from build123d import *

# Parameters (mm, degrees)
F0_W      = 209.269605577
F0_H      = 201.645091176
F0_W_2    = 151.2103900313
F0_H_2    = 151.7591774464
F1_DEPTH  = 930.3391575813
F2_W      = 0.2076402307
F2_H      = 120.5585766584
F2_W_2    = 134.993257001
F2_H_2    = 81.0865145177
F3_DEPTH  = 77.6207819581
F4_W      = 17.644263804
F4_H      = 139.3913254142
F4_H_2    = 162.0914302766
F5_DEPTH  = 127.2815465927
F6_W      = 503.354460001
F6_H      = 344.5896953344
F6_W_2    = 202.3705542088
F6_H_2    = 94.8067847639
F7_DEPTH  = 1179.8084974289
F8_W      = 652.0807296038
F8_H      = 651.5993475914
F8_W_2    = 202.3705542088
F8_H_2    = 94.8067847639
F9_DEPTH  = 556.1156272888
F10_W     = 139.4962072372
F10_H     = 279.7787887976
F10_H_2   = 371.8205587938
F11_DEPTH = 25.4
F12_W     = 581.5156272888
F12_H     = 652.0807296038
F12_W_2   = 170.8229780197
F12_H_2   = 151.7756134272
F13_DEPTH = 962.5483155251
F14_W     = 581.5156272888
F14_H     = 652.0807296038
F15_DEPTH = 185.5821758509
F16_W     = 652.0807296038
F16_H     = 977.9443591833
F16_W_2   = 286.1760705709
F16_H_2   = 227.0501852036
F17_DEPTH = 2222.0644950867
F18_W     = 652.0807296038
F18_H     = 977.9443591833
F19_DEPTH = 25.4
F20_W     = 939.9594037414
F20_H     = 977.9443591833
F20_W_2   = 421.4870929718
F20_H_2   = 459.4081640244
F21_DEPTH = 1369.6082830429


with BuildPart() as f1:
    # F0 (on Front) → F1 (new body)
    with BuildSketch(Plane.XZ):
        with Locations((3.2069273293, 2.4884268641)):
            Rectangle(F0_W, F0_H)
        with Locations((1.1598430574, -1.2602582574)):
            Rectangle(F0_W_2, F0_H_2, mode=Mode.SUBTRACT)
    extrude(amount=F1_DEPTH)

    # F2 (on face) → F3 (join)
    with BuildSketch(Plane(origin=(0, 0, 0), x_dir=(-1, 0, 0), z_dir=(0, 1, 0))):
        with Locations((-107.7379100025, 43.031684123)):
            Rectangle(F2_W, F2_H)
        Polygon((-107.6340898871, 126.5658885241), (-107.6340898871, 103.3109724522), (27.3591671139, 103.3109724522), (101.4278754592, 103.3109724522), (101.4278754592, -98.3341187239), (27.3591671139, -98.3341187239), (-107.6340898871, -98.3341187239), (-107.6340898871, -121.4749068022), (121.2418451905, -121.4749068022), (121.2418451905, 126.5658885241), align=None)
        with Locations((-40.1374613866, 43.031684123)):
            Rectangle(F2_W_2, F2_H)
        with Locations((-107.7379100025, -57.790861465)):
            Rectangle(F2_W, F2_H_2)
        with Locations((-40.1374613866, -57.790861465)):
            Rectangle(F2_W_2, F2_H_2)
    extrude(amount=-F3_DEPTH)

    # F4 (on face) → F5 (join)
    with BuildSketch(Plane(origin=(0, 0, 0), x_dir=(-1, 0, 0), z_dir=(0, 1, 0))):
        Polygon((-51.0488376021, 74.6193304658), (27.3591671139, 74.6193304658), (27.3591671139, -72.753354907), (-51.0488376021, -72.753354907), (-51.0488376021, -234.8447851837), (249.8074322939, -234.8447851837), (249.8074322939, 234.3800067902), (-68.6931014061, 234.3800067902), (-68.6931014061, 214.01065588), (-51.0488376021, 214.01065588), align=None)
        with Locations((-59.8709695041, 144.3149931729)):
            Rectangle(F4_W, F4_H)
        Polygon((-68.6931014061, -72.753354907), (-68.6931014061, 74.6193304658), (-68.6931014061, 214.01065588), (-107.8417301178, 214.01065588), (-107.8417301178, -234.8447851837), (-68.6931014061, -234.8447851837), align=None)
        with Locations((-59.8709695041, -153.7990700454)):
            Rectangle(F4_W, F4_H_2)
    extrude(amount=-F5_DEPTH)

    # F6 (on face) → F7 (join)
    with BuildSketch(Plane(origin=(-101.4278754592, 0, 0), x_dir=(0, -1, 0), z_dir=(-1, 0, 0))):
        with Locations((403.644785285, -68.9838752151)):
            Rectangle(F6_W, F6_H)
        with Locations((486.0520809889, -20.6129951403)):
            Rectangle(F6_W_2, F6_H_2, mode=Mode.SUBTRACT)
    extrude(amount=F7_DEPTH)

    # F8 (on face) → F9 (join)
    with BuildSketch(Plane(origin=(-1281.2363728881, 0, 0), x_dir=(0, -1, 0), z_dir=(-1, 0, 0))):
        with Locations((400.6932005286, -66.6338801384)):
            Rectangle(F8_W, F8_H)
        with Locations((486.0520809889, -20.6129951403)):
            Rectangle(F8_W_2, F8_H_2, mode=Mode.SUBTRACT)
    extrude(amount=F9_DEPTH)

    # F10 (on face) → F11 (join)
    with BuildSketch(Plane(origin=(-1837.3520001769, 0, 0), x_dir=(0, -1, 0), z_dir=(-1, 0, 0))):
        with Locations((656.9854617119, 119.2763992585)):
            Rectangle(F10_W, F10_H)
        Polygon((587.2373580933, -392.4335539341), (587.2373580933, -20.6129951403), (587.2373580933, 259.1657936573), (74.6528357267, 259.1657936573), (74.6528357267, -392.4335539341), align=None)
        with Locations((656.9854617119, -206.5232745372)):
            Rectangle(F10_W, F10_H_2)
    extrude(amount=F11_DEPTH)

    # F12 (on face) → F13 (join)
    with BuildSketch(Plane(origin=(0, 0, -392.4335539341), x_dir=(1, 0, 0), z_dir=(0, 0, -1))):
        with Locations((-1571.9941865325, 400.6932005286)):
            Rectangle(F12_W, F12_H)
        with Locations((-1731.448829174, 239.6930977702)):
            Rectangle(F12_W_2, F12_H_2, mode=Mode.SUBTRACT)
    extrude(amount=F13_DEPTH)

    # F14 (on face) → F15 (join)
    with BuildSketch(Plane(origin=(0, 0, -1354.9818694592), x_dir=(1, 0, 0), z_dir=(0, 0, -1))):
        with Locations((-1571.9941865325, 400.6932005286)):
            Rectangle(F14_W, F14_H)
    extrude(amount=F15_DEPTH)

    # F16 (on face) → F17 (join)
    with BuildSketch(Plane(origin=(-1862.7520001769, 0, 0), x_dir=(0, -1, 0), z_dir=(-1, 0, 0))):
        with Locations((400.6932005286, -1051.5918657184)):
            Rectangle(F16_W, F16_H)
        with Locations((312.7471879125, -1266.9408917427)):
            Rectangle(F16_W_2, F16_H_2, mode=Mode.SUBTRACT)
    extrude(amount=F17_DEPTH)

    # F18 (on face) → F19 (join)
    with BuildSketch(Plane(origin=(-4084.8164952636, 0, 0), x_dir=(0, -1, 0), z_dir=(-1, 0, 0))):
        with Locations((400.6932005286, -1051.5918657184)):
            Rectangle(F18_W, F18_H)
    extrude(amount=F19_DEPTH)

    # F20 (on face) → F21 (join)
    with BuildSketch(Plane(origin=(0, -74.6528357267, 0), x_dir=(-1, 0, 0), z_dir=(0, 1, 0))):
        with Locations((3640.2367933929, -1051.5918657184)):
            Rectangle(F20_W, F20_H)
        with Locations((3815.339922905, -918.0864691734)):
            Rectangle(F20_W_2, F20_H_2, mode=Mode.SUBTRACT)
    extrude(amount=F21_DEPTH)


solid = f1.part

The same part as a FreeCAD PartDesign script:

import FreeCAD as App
import Part
import Sketcher
Q = App.Units.Quantity

doc = App.newDocument("Part")
body = doc.addObject("PartDesign::Body", "Body")

# Sketch on XZ plane
sketch1 = doc.addObject("Sketcher::SketchObject", "Sketch")
body.addObject(sketch1)
sketch1.AttachmentSupport = (doc.XZ_Plane, [""])
sketch1.MapMode = "FlatFace"
sketch1.addGeometry([
    Part.LineSegment(App.Vector(-101.427875, 103.310972, 0), App.Vector(-101.427875, -98.334119, 0)),  # 0
    Part.LineSegment(App.Vector(-101.427875, -98.334119, 0), App.Vector(107.84173, -98.334119, 0)),  # 1
    Part.LineSegment(App.Vector(107.84173, -98.334119, 0), App.Vector(107.84173, 103.310972, 0)),  # 2
    Part.LineSegment(App.Vector(107.84173, 103.310972, 0), App.Vector(-101.427875, 103.310972, 0)),  # 3
    Part.LineSegment(App.Vector(76.765038, -77.139847, 0), App.Vector(-74.445352, -77.139847, 0)),  # 4
    Part.LineSegment(App.Vector(-74.445352, -77.139847, 0), App.Vector(-74.445352, 74.61933, 0)),  # 5
    Part.LineSegment(App.Vector(-74.445352, 74.61933, 0), App.Vector(76.765038, 74.61933, 0)),  # 6
    Part.LineSegment(App.Vector(76.765038, 74.61933, 0), App.Vector(76.765038, -77.139847, 0)),  # 7
], False)
sketch1.addConstraint([
    Sketcher.Constraint("Coincident", 0, 2, 1, 1),
    Sketcher.Constraint("Coincident", 1, 2, 2, 1),
    Sketcher.Constraint("Coincident", 2, 2, 3, 1),
    Sketcher.Constraint("Coincident", 3, 2, 0, 1),
    Sketcher.Constraint("Coincident", 4, 2, 5, 1),
    Sketcher.Constraint("Coincident", 5, 2, 6, 1),
    Sketcher.Constraint("Coincident", 6, 2, 7, 1),
    Sketcher.Constraint("Coincident", 7, 2, 4, 1),
    Sketcher.Constraint("Vertical", 0),
    Sketcher.Constraint("Horizontal", 1),
    Sketcher.Constraint("Vertical", 2),
    Sketcher.Constraint("Horizontal", 3),
    Sketcher.Constraint("Horizontal", 4),
    Sketcher.Constraint("Vertical", 5),
    Sketcher.Constraint("Horizontal", 6),
    Sketcher.Constraint("Vertical", 7),
    Sketcher.Constraint("DistanceX", 4, 2, 4, 1, 151.21039),
    Sketcher.Constraint("DistanceY", 0, 2, 0, 1, 201.645091),
    Sketcher.Constraint("DistanceX", 1, 1, 1, 2, 209.269606),
    Sketcher.Constraint("DistanceY", 5, 1, 5, 2, 151.759177),
    Sketcher.Constraint("DistanceY", 0, 2, -1, 1, 98.334119),
    Sketcher.Constraint("DistanceX", -1, 1, 1, 2, 107.84173),
    Sketcher.Constraint("DistanceX", 4, 2, -1, 1, 74.445352),
    Sketcher.Constraint("DistanceY", -1, 1, 5, 2, 74.61933),
])
pad1 = doc.addObject("PartDesign::Pad", "Pad")
body.addObject(pad1)
pad1.Profile = sketch1
pad1.Length = 930.339158

# Sketch on XZ plane
sketch2 = doc.addObject("Sketcher::SketchObject", "Sketch001")
body.addObject(sketch2)
sketch2.AttachmentSupport = (doc.XZ_Plane, [""])
sketch2.MapMode = "FlatFace"
sketch2.addGeometry([
    Part.LineSegment(App.Vector(107.84173, -98.334119, 0), App.Vector(107.63409, -98.334119, 0)),  # 0
    Part.LineSegment(App.Vector(107.63409, -98.334119, 0), App.Vector(107.63409, -121.474907, 0)),  # 1
    Part.LineSegment(App.Vector(107.63409, -121.474907, 0), App.Vector(-121.241845, -121.474907, 0)),  # 2
    Part.LineSegment(App.Vector(-121.241845, -121.474907, 0), App.Vector(-121.241845, 126.565889, 0)),  # 3
    Part.LineSegment(App.Vector(-121.241845, 126.565889, 0), App.Vector(107.63409, 126.565889, 0)),  # 4
    Part.LineSegment(App.Vector(107.63409, 126.565889, 0), App.Vector(107.63409, 103.310972, 0)),  # 5
    Part.LineSegment(App.Vector(107.63409, 103.310972, 0), App.Vector(107.84173, 103.310972, 0)),  # 6
    Part.LineSegment(App.Vector(107.84173, 103.310972, 0), App.Vector(107.84173, -98.334119, 0)),  # 7
    Part.LineSegment(App.Vector(-101.427875, -98.334119, 0), App.Vector(-27.359167, -98.334119, 0)),  # 8
    Part.LineSegment(App.Vector(-27.359167, -98.334119, 0), App.Vector(-27.359167, 103.310972, 0)),  # 9
    Part.LineSegment(App.Vector(-27.359167, 103.310972, 0), App.Vector(-101.427875, 103.310972, 0)),  # 10
    Part.LineSegment(App.Vector(-101.427875, 103.310972, 0), App.Vector(-101.427875, -98.334119, 0)),  # 11
], False)
sketch2.addConstraint([
    Sketcher.Constraint("Coincident", 0, 2, 1, 1),
    Sketcher.Constraint("Coincident", 1, 2, 2, 1),
    Sketcher.Constraint("Coincident", 2, 2, 3, 1),
    Sketcher.Constraint("Coincident", 3, 2, 4, 1),
    Sketcher.Constraint("Coincident", 4, 2, 5, 1),
    Sketcher.Constraint("Coincident", 5, 2, 6, 1),
    Sketcher.Constraint("Coincident", 6, 2, 7, 1),
    Sketcher.Constraint("Coincident", 7, 2, 0, 1),
    Sketcher.Constraint("Coincident", 8, 2, 9, 1),
    Sketcher.Constraint("Coincident", 9, 2, 10, 1),
    Sketcher.Constraint("Coincident", 10, 2, 11, 1),
    Sketcher.Constraint("Coincident", 11, 2, 8, 1),
    Sketcher.Constraint("Horizontal", 0),
    Sketcher.Constraint("Vertical", 1),
    Sketcher.Constraint("Horizontal", 2),
    Sketcher.Constraint("Vertical", 3),
    Sketcher.Constraint("Horizontal", 4),
    Sketcher.Constraint("Vertical", 5),
    Sketcher.Constraint("Horizontal", 6),
    Sketcher.Constraint("Vertical", 7),
    Sketcher.Constraint("Horizontal", 8),
    Sketcher.Constraint("Vertical", 9),
    Sketcher.Constraint("Horizontal", 10),
    Sketcher.Constraint("Vertical", 11),
    Sketcher.Constraint("Horizontal", 7, 2, 8, 2),
    Sketcher.Constraint("Horizontal", 6, 2, 9, 2),
    Sketcher.Constraint("Vertical", 1, 2, 4, 2),
    Sketcher.Constraint("DistanceX", 0, 2, 0, 1, 0.20764),
    Sketcher.Constraint("DistanceX", 8, 1, 8, 2, 74.068708),
    Sketcher.Constraint("DistanceY", 1, 2, 1, 1, 23.140788),
    Sketcher.Constraint("DistanceY", 7, 2, 7, 1, 201.645091),
    Sketcher.Constraint("DistanceX", 2, 2, 2, 1, 228.875935),
    Sketcher.Constraint("DistanceY", 3, 1, 3, 2, 248.040795),
    Sketcher.Constraint("DistanceX", -1, 1, 0, 2, 107.63409),
    Sketcher.Constraint("DistanceY", 0, 2, -1, 1, 98.334119),
    Sketcher.Constraint("DistanceX", 2, 2, 8, 2, 93.882678),
])
pad2 = doc.addObject("PartDesign::Pad", "Pad001")
body.addObject(pad2)
pad2.Profile = sketch2
pad2.Length = 77.620782

# Sketch on XZ plane
sketch3 = doc.addObject("Sketcher::SketchObject", "Sketch002")
body.addObject(sketch3)
sketch3.AttachmentSupport = (doc.XZ_Plane, [""])
sketch3.MapMode = "FlatFace"
sketch3.addGeometry([
    Part.LineSegment(App.Vector(-249.807432, -234.844785, 0), App.Vector(-249.807432, 234.380007, 0)),  # 0
    Part.LineSegment(App.Vector(-249.807432, 234.380007, 0), App.Vector(68.693101, 234.380007, 0)),  # 1
    Part.LineSegment(App.Vector(68.693101, 234.380007, 0), App.Vector(68.693101, 214.010656, 0)),  # 2
    Part.LineSegment(App.Vector(68.693101, 214.010656, 0), App.Vector(107.84173, 214.010656, 0)),  # 3
    Part.LineSegment(App.Vector(107.84173, 214.010656, 0), App.Vector(107.84173, -234.844785, 0)),  # 4
    Part.LineSegment(App.Vector(107.84173, -234.844785, 0), App.Vector(-249.807432, -234.844785, 0)),  # 5
    Part.LineSegment(App.Vector(-27.359167, 74.61933, 0), App.Vector(-27.359167, -72.753355, 0)),  # 6
    Part.LineSegment(App.Vector(-27.359167, -72.753355, 0), App.Vector(51.048838, -72.753355, 0)),  # 7
    Part.LineSegment(App.Vector(51.048838, -72.753355, 0), App.Vector(68.693101, -72.753355, 0)),  # 8
    Part.LineSegment(App.Vector(68.693101, -72.753355, 0), App.Vector(68.693101, 74.61933, 0)),  # 9
    Part.LineSegment(App.Vector(68.693101, 74.61933, 0), App.Vector(-27.359167, 74.61933, 0)),  # 10
], False)
sketch3.addConstraint([
    Sketcher.Constraint("Coincident", 0, 2, 1, 1),
    Sketcher.Constraint("Coincident", 1, 2, 2, 1),
    Sketcher.Constraint("Coincident", 2, 2, 3, 1),
    Sketcher.Constraint("Coincident", 3, 2, 4, 1),
    Sketcher.Constraint("Coincident", 4, 2, 5, 1),
    Sketcher.Constraint("Coincident", 5, 2, 0, 1),
    Sketcher.Constraint("Coincident", 6, 2, 7, 1),
    Sketcher.Constraint("Coincident", 7, 2, 8, 1),
    Sketcher.Constraint("Coincident", 8, 2, 9, 1),
    Sketcher.Constraint("Coincident", 9, 2, 10, 1),
    Sketcher.Constraint("Coincident", 10, 2, 6, 1),
    Sketcher.Constraint("Vertical", 0),
    Sketcher.Constraint("Horizontal", 1),
    Sketcher.Constraint("Vertical", 2),
    Sketcher.Constraint("Horizontal", 3),
    Sketcher.Constraint("Vertical", 4),
    Sketcher.Constraint("Horizontal", 5),
    Sketcher.Constraint("Vertical", 6),
    Sketcher.Constraint("Horizontal", 7),
    Sketcher.Constraint("Horizontal", 8),
    Sketcher.Constraint("Vertical", 9),
    Sketcher.Constraint("Horizontal", 10),
    Sketcher.Constraint("Vertical", 2, 2, 8, 2),
    Sketcher.Constraint("DistanceX", 3, 1, 3, 2, 39.148629),
    Sketcher.Constraint("DistanceX", 10, 2, 10, 1, 96.052269),
    Sketcher.Constraint("DistanceY", 0, 1, 0, 2, 469.224792),
    Sketcher.Constraint("DistanceY", 2, 2, 2, 1, 20.369351),
    Sketcher.Constraint("DistanceX", -1, 1, 1, 2, 68.693101),
    Sketcher.Constraint("DistanceX", 1, 1, 1, 2, 318.500534),
    Sketcher.Constraint("DistanceX", 7, 1, 7, 2, 78.408005),
    Sketcher.Constraint("DistanceY", 6, 2, 6, 1, 147.372685),
    Sketcher.Constraint("DistanceY", -1, 1, 9, 2, 74.61933),
    Sketcher.Constraint("DistanceY", 4, 2, 6, 2, 162.09143),
])
pad3 = doc.addObject("PartDesign::Pad", "Pad002")
body.addObject(pad3)
pad3.Profile = sketch3
pad3.Length = 127.281547

# Sketch on YZ plane
sketch4 = doc.addObject("Sketcher::SketchObject", "Sketch003")
body.addObject(sketch4)
sketch4.AttachmentSupport = (doc.YZ_Plane, [""])
sketch4.MapMode = "FlatFace"
sketch4.AttachmentOffset = App.Placement(App.Vector(0, 0, -101.427875), App.Rotation())
sketch4.addGeometry([
    Part.LineSegment(App.Vector(-151.967555, 103.310972, 0), App.Vector(-151.967555, -241.278723, 0)),  # 0
    Part.LineSegment(App.Vector(-151.967555, -241.278723, 0), App.Vector(-655.322015, -241.278723, 0)),  # 1
    Part.LineSegment(App.Vector(-655.322015, -241.278723, 0), App.Vector(-655.322015, 103.310972, 0)),  # 2
    Part.LineSegment(App.Vector(-655.322015, 103.310972, 0), App.Vector(-151.967555, 103.310972, 0)),  # 3
    Part.LineSegment(App.Vector(-587.237358, -68.016388, 0), App.Vector(-384.866804, -68.016388, 0)),  # 4
    Part.LineSegment(App.Vector(-384.866804, -68.016388, 0), App.Vector(-384.866804, 26.790397, 0)),  # 5
    Part.LineSegment(App.Vector(-384.866804, 26.790397, 0), App.Vector(-587.237358, 26.790397, 0)),  # 6
    Part.LineSegment(App.Vector(-587.237358, 26.790397, 0), App.Vector(-587.237358, -68.016388, 0)),  # 7
], False)
sketch4.addConstraint([
    Sketcher.Constraint("Coincident", 0, 2, 1, 1),
    Sketcher.Constraint("Coincident", 1, 2, 2, 1),
    Sketcher.Constraint("Coincident", 2, 2, 3, 1),
    Sketcher.Constraint("Coincident", 3, 2, 0, 1),
    Sketcher.Constraint("Coincident", 4, 2, 5, 1),
    Sketcher.Constraint("Coincident", 5, 2, 6, 1),
    Sketcher.Constraint("Coincident", 6, 2, 7, 1),
    Sketcher.Constraint("Coincident", 7, 2, 4, 1),
    Sketcher.Constraint("Vertical", 0),
    Sketcher.Constraint("Horizontal", 1),
    Sketcher.Constraint("Vertical", 2),
    Sketcher.Constraint("Horizontal", 3),
    Sketcher.Constraint("Horizontal", 4),
    Sketcher.Constraint("Vertical", 5),
    Sketcher.Constraint("Horizontal", 6),
    Sketcher.Constraint("Vertical", 7),
    Sketcher.Constraint("DistanceX", 1, 2, 1, 1, 503.35446),
    Sketcher.Constraint("DistanceX", 4, 1, 4, 2, 202.370554),
    Sketcher.Constraint("DistanceY", 0, 2, 0, 1, 344.589695),
    Sketcher.Constraint("DistanceY", 5, 1, 5, 2, 94.806785),
    Sketcher.Constraint("DistanceX", 6, 2, -1, 1, 587.237358),
    Sketcher.Constraint("DistanceX", 4, 2, 3, 2, 232.899249),
    Sketcher.Constraint("DistanceY", 4, 2, 3, 2, 171.32736),
    Sketcher.Constraint("DistanceY", 0, 2, -1, 1, 241.278723),
])
pad4 = doc.addObject("PartDesign::Pad", "Pad003")
body.addObject(pad4)
pad4.Profile = sketch4
pad4.Length = 1179.808497
pad4.Reversed = True

# Sketch on YZ plane
sketch5 = doc.addObject("Sketcher::SketchObject", "Sketch004")
body.addObject(sketch5)
sketch5.AttachmentSupport = (doc.YZ_Plane, [""])
sketch5.MapMode = "FlatFace"
sketch5.AttachmentOffset = App.Placement(App.Vector(0, 0, -1281.236373), App.Rotation())
sketch5.addGeometry([
    Part.LineSegment(App.Vector(-74.652836, 259.165794, 0), App.Vector(-74.652836, -392.433554, 0)),  # 0
    Part.LineSegment(App.Vector(-74.652836, -392.433554, 0), App.Vector(-726.733565, -392.433554, 0)),  # 1
    Part.LineSegment(App.Vector(-726.733565, -392.433554, 0), App.Vector(-726.733565, 259.165794, 0)),  # 2
    Part.LineSegment(App.Vector(-726.733565, 259.165794, 0), App.Vector(-74.652836, 259.165794, 0)),  # 3
    Part.LineSegment(App.Vector(-587.237358, -68.016388, 0), App.Vector(-384.866804, -68.016388, 0)),  # 4
    Part.LineSegment(App.Vector(-384.866804, -68.016388, 0), App.Vector(-384.866804, 26.790397, 0)),  # 5
    Part.LineSegment(App.Vector(-384.866804, 26.790397, 0), App.Vector(-587.237358, 26.790397, 0)),  # 6
    Part.LineSegment(App.Vector(-587.237358, 26.790397, 0), App.Vector(-587.237358, -68.016388, 0)),  # 7
], False)
sketch5.addConstraint([
    Sketcher.Constraint("Coincident", 0, 2, 1, 1),
    Sketcher.Constraint("Coincident", 1, 2, 2, 1),
    Sketcher.Constraint("Coincident", 2, 2, 3, 1),
    Sketcher.Constraint("Coincident", 3, 2, 0, 1),
    Sketcher.Constraint("Coincident", 4, 2, 5, 1),
    Sketcher.Constraint("Coincident", 5, 2, 6, 1),
    Sketcher.Constraint("Coincident", 6, 2, 7, 1),
    Sketcher.Constraint("Coincident", 7, 2, 4, 1),
    Sketcher.Constraint("Vertical", 0),
    Sketcher.Constraint("Horizontal", 1),
    Sketcher.Constraint("Vertical", 2),
    Sketcher.Constraint("Horizontal", 3),
    Sketcher.Constraint("Horizontal", 4),
    Sketcher.Constraint("Vertical", 5),
    Sketcher.Constraint("Horizontal", 6),
    Sketcher.Constraint("Vertical", 7),
    Sketcher.Constraint("DistanceX", 1, 2, 1, 1, 652.08073),
    Sketcher.Constraint("DistanceX", 4, 1, 4, 2, 202.370554),
    Sketcher.Constraint("DistanceY", 0, 2, 0, 1, 651.599348),
    Sketcher.Constraint("DistanceY", 5, 1, 5, 2, 94.806785),
    Sketcher.Constraint("DistanceX", 6, 2, -1, 1, 587.237358),
    Sketcher.Constraint("DistanceX", 4, 2, 0, 2, 310.213968),
    Sketcher.Constraint("DistanceY", 4, 2, 3, 2, 327.182181),
    Sketcher.Constraint("DistanceY", 0, 2, -1, 1, 392.433554),
])
pad5 = doc.addObject("PartDesign::Pad", "Pad004")
body.addObject(pad5)
pad5.Profile = sketch5
pad5.Length = 556.115627
pad5.Reversed = True

# Sketch on YZ plane
sketch6 = doc.addObject("Sketcher::SketchObject", "Sketch005")
body.addObject(sketch6)
sketch6.AttachmentSupport = (doc.YZ_Plane, [""])
sketch6.MapMode = "FlatFace"
sketch6.AttachmentOffset = App.Placement(App.Vector(0, 0, -1837.352), App.Rotation())
sketch6.addGeometry([
    Part.LineSegment(App.Vector(-726.733565, 259.165794, 0), App.Vector(-74.652836, 259.165794, 0)),
    Part.LineSegment(App.Vector(-74.652836, 259.165794, 0), App.Vector(-74.652836, -392.433554, 0)),
    Part.LineSegment(App.Vector(-74.652836, -392.433554, 0), App.Vector(-726.733565, -392.433554, 0)),
    Part.LineSegment(App.Vector(-726.733565, -392.433554, 0), App.Vector(-726.733565, 259.165794, 0)),
], False)
sketch6.addConstraint([
    Sketcher.Constraint("Coincident", 0, 2, 1, 1),
    Sketcher.Constraint("Coincident", 1, 2, 2, 1),
    Sketcher.Constraint("Coincident", 2, 2, 3, 1),
    Sketcher.Constraint("Coincident", 3, 2, 0, 1),
    Sketcher.Constraint("Horizontal", 0),
    Sketcher.Constraint("Vertical", 1),
    Sketcher.Constraint("Horizontal", 2),
    Sketcher.Constraint("Vertical", 3),
    Sketcher.Constraint("DistanceX", 0, 1, 0, 2, 652.08073),
    Sketcher.Constraint("DistanceY", 1, 2, 1, 1, 651.599348),
    Sketcher.Constraint("DistanceX", 0, 2, -1, 1, 74.652836),
    Sketcher.Constraint("DistanceY", -1, 1, 0, 2, 259.165794),
])
pad6 = doc.addObject("PartDesign::Pad", "Pad005")
body.addObject(pad6)
pad6.Profile = sketch6
pad6.Length = Q("1 in")
pad6.Reversed = True

# Sketch on XY plane
sketch7 = doc.addObject("Sketcher::SketchObject", "Sketch006")
body.addObject(sketch7)
sketch7.AttachmentSupport = (doc.XY_Plane, [""])
sketch7.MapMode = "FlatFace"
sketch7.AttachmentOffset = App.Placement(App.Vector(0, 0, -392.433554), App.Rotation())
sketch7.addGeometry([
    Part.LineSegment(App.Vector(-1862.752, -726.733565, 0), App.Vector(-1862.752, -74.652836, 0)),  # 0
    Part.LineSegment(App.Vector(-1862.752, -74.652836, 0), App.Vector(-1281.236373, -74.652836, 0)),  # 1
    Part.LineSegment(App.Vector(-1281.236373, -74.652836, 0), App.Vector(-1281.236373, -726.733565, 0)),  # 2
    Part.LineSegment(App.Vector(-1281.236373, -726.733565, 0), App.Vector(-1862.752, -726.733565, 0)),  # 3
    Part.LineSegment(App.Vector(-1646.03734, -163.805291, 0), App.Vector(-1816.860318, -163.805291, 0)),  # 4
    Part.LineSegment(App.Vector(-1816.860318, -163.805291, 0), App.Vector(-1816.860318, -315.580904, 0)),  # 5
    Part.LineSegment(App.Vector(-1816.860318, -315.580904, 0), App.Vector(-1646.03734, -315.580904, 0)),  # 6
    Part.LineSegment(App.Vector(-1646.03734, -315.580904, 0), App.Vector(-1646.03734, -163.805291, 0)),  # 7
], False)
sketch7.addConstraint([
    Sketcher.Constraint("Coincident", 0, 2, 1, 1),
    Sketcher.Constraint("Coincident", 1, 2, 2, 1),
    Sketcher.Constraint("Coincident", 2, 2, 3, 1),
    Sketcher.Constraint("Coincident", 3, 2, 0, 1),
    Sketcher.Constraint("Coincident", 4, 2, 5, 1),
    Sketcher.Constraint("Coincident", 5, 2, 6, 1),
    Sketcher.Constraint("Coincident", 6, 2, 7, 1),
    Sketcher.Constraint("Coincident", 7, 2, 4, 1),
    Sketcher.Constraint("Vertical", 0),
    Sketcher.Constraint("Horizontal", 1),
    Sketcher.Constraint("Vertical", 2),
    Sketcher.Constraint("Horizontal", 3),
    Sketcher.Constraint("Horizontal", 4),
    Sketcher.Constraint("Vertical", 5),
    Sketcher.Constraint("Horizontal", 6),
    Sketcher.Constraint("Vertical", 7),
    Sketcher.Constraint("DistanceX", 4, 2, 4, 1, 170.822978),
    Sketcher.Constraint("DistanceY", 0, 1, 0, 2, 652.08073),
    Sketcher.Constraint("DistanceX", 0, 2, -1, 1, 1862.752),
    Sketcher.Constraint("DistanceX", 1, 1, 1, 2, 581.515627),
    Sketcher.Constraint("DistanceY", 5, 2, 5, 1, 151.775613),
    Sketcher.Constraint("DistanceX", 4, 2, -1, 1, 1816.860318),
    Sketcher.Constraint("DistanceY", 4, 2, -1, 1, 163.805291),
    Sketcher.Constraint("DistanceY", 5, 2, 0, 2, 240.928069),
])
pad7 = doc.addObject("PartDesign::Pad", "Pad006")
body.addObject(pad7)
pad7.Profile = sketch7
pad7.Length = 962.548316
pad7.Reversed = True

# Sketch on XY plane
sketch8 = doc.addObject("Sketcher::SketchObject", "Sketch007")
body.addObject(sketch8)
sketch8.AttachmentSupport = (doc.XY_Plane, [""])
sketch8.MapMode = "FlatFace"
sketch8.AttachmentOffset = App.Placement(App.Vector(0, 0, -1354.981869), App.Rotation())
sketch8.addGeometry([
    Part.LineSegment(App.Vector(-1862.752, -726.733565, 0), App.Vector(-1862.752, -74.652836, 0)),
    Part.LineSegment(App.Vector(-1862.752, -74.652836, 0), App.Vector(-1281.236373, -74.652836, 0)),
    Part.LineSegment(App.Vector(-1281.236373, -74.652836, 0), App.Vector(-1281.236373, -726.733565, 0)),
    Part.LineSegment(App.Vector(-1281.236373, -726.733565, 0), App.Vector(-1862.752, -726.733565, 0)),
], False)
sketch8.addConstraint([
    Sketcher.Constraint("Coincident", 0, 2, 1, 1),
    Sketcher.Constraint("Coincident", 1, 2, 2, 1),
    Sketcher.Constraint("Coincident", 2, 2, 3, 1),
    Sketcher.Constraint("Coincident", 3, 2, 0, 1),
    Sketcher.Constraint("Vertical", 0),
    Sketcher.Constraint("Horizontal", 1),
    Sketcher.Constraint("Vertical", 2),
    Sketcher.Constraint("Horizontal", 3),
    Sketcher.Constraint("DistanceY", 0, 1, 0, 2, 652.08073),
    Sketcher.Constraint("DistanceX", 0, 2, -1, 1, 1862.752),
    Sketcher.Constraint("DistanceX", 1, 1, 1, 2, 581.515627),
    Sketcher.Constraint("DistanceY", 0, 2, -1, 1, 74.652836),
])
pad8 = doc.addObject("PartDesign::Pad", "Pad007")
body.addObject(pad8)
pad8.Profile = sketch8
pad8.Length = 185.582176
pad8.Reversed = True

# Sketch on YZ plane
sketch9 = doc.addObject("Sketcher::SketchObject", "Sketch008")
body.addObject(sketch9)
sketch9.AttachmentSupport = (doc.YZ_Plane, [""])
sketch9.MapMode = "FlatFace"
sketch9.AttachmentOffset = App.Placement(App.Vector(0, 0, -1862.752), App.Rotation())
sketch9.addGeometry([
    Part.LineSegment(App.Vector(-74.652836, -562.619686, 0), App.Vector(-74.652836, -1540.564045, 0)),  # 0
    Part.LineSegment(App.Vector(-74.652836, -1540.564045, 0), App.Vector(-726.733565, -1540.564045, 0)),  # 1
    Part.LineSegment(App.Vector(-726.733565, -1540.564045, 0), App.Vector(-726.733565, -562.619686, 0)),  # 2
    Part.LineSegment(App.Vector(-726.733565, -562.619686, 0), App.Vector(-74.652836, -562.619686, 0)),  # 3
    Part.LineSegment(App.Vector(-455.835223, -1380.465984, 0), App.Vector(-169.659153, -1380.465984, 0)),  # 4
    Part.LineSegment(App.Vector(-169.659153, -1380.465984, 0), App.Vector(-169.659153, -1153.415799, 0)),  # 5
    Part.LineSegment(App.Vector(-169.659153, -1153.415799, 0), App.Vector(-455.835223, -1153.415799, 0)),  # 6
    Part.LineSegment(App.Vector(-455.835223, -1153.415799, 0), App.Vector(-455.835223, -1380.465984, 0)),  # 7
], False)
sketch9.addConstraint([
    Sketcher.Constraint("Coincident", 0, 2, 1, 1),
    Sketcher.Constraint("Coincident", 1, 2, 2, 1),
    Sketcher.Constraint("Coincident", 2, 2, 3, 1),
    Sketcher.Constraint("Coincident", 3, 2, 0, 1),
    Sketcher.Constraint("Coincident", 4, 2, 5, 1),
    Sketcher.Constraint("Coincident", 5, 2, 6, 1),
    Sketcher.Constraint("Coincident", 6, 2, 7, 1),
    Sketcher.Constraint("Coincident", 7, 2, 4, 1),
    Sketcher.Constraint("Vertical", 0),
    Sketcher.Constraint("Horizontal", 1),
    Sketcher.Constraint("Vertical", 2),
    Sketcher.Constraint("Horizontal", 3),
    Sketcher.Constraint("Horizontal", 4),
    Sketcher.Constraint("Vertical", 5),
    Sketcher.Constraint("Horizontal", 6),
    Sketcher.Constraint("Vertical", 7),
    Sketcher.Constraint("DistanceX", 1, 2, 1, 1, 652.08073),
    Sketcher.Constraint("DistanceX", 4, 1, 4, 2, 286.176071),
    Sketcher.Constraint("DistanceY", 0, 2, 0, 1, 977.944359),
    Sketcher.Constraint("DistanceY", 5, 2, -1, 1, 1153.415799),
    Sketcher.Constraint("DistanceY", 4, 2, 3, 2, 817.846298),
    Sketcher.Constraint("DistanceY", 5, 1, 5, 2, 227.050185),
    Sketcher.Constraint("DistanceX", 0, 2, -1, 1, 74.652836),
    Sketcher.Constraint("DistanceX", 4, 2, -1, 1, 169.659153),
])
pad9 = doc.addObject("PartDesign::Pad", "Pad008")
body.addObject(pad9)
pad9.Profile = sketch9
pad9.Length = 2222.064495
pad9.Reversed = True

# Sketch on YZ plane
sketch10 = doc.addObject("Sketcher::SketchObject", "Sketch009")
body.addObject(sketch10)
sketch10.AttachmentSupport = (doc.YZ_Plane, [""])
sketch10.MapMode = "FlatFace"
sketch10.AttachmentOffset = App.Placement(App.Vector(0, 0, -4084.816495), App.Rotation())
sketch10.addGeometry([
    Part.LineSegment(App.Vector(-74.652836, -562.619686, 0), App.Vector(-74.652836, -1540.564045, 0)),
    Part.LineSegment(App.Vector(-74.652836, -1540.564045, 0), App.Vector(-726.733565, -1540.564045, 0)),
    Part.LineSegment(App.Vector(-726.733565, -1540.564045, 0), App.Vector(-726.733565, -562.619686, 0)),
    Part.LineSegment(App.Vector(-726.733565, -562.619686, 0), App.Vector(-74.652836, -562.619686, 0)),
], False)
sketch10.addConstraint([
    Sketcher.Constraint("Coincident", 0, 2, 1, 1),
    Sketcher.Constraint("Coincident", 1, 2, 2, 1),
    Sketcher.Constraint("Coincident", 2, 2, 3, 1),
    Sketcher.Constraint("Coincident", 3, 2, 0, 1),
    Sketcher.Constraint("Vertical", 0),
    Sketcher.Constraint("Horizontal", 1),
    Sketcher.Constraint("Vertical", 2),
    Sketcher.Constraint("Horizontal", 3),
    Sketcher.Constraint("DistanceX", 1, 2, 1, 1, 652.08073),
    Sketcher.Constraint("DistanceY", 0, 2, 0, 1, 977.944359),
    Sketcher.Constraint("DistanceX", 0, 2, -1, 1, 74.652836),
    Sketcher.Constraint("DistanceY", 0, 2, -1, 1, 1540.564045),
])
pad10 = doc.addObject("PartDesign::Pad", "Pad009")
body.addObject(pad10)
pad10.Profile = sketch10
pad10.Length = Q("1 in")
pad10.Reversed = True

# Sketch on XZ plane
sketch11 = doc.addObject("Sketcher::SketchObject", "Sketch010")
body.addObject(sketch11)
sketch11.AttachmentSupport = (doc.XZ_Plane, [""])
sketch11.MapMode = "FlatFace"
sketch11.AttachmentOffset = App.Placement(App.Vector(0, 0, 74.652836), App.Rotation())
sketch11.addGeometry([
    Part.LineSegment(App.Vector(-3170.257092, -562.619686, 0), App.Vector(-3170.257092, -1540.564045, 0)),  # 0
    Part.LineSegment(App.Vector(-3170.257092, -1540.564045, 0), App.Vector(-4110.216495, -1540.564045, 0)),  # 1
    Part.LineSegment(App.Vector(-4110.216495, -1540.564045, 0), App.Vector(-4110.216495, -562.619686, 0)),  # 2
    Part.LineSegment(App.Vector(-4110.216495, -562.619686, 0), App.Vector(-3170.257092, -562.619686, 0)),  # 3
    Part.LineSegment(App.Vector(-4026.083469, -1147.790551, 0), App.Vector(-3604.596376, -1147.790551, 0)),  # 4
    Part.LineSegment(App.Vector(-3604.596376, -1147.790551, 0), App.Vector(-3604.596376, -688.382387, 0)),  # 5
    Part.LineSegment(App.Vector(-3604.596376, -688.382387, 0), App.Vector(-4026.083469, -688.382387, 0)),  # 6
    Part.LineSegment(App.Vector(-4026.083469, -688.382387, 0), App.Vector(-4026.083469, -1147.790551, 0)),  # 7
], False)
sketch11.addConstraint([
    Sketcher.Constraint("Coincident", 0, 2, 1, 1),
    Sketcher.Constraint("Coincident", 1, 2, 2, 1),
    Sketcher.Constraint("Coincident", 2, 2, 3, 1),
    Sketcher.Constraint("Coincident", 3, 2, 0, 1),
    Sketcher.Constraint("Coincident", 4, 2, 5, 1),
    Sketcher.Constraint("Coincident", 5, 2, 6, 1),
    Sketcher.Constraint("Coincident", 6, 2, 7, 1),
    Sketcher.Constraint("Coincident", 7, 2, 4, 1),
    Sketcher.Constraint("Vertical", 0),
    Sketcher.Constraint("Horizontal", 1),
    Sketcher.Constraint("Vertical", 2),
    Sketcher.Constraint("Horizontal", 3),
    Sketcher.Constraint("Horizontal", 4),
    Sketcher.Constraint("Vertical", 5),
    Sketcher.Constraint("Horizontal", 6),
    Sketcher.Constraint("Vertical", 7),
    Sketcher.Constraint("DistanceY", 0, 2, 0, 1, 977.944359),
    Sketcher.Constraint("DistanceY", 5, 2, 3, 2, 125.762701),
    Sketcher.Constraint("DistanceX", 1, 2, 1, 1, 939.959404),
    Sketcher.Constraint("DistanceX", 4, 1, 4, 2, 421.487093),
    Sketcher.Constraint("DistanceY", 5, 1, 5, 2, 459.408164),
    Sketcher.Constraint("DistanceX", 0, 2, -1, 1, 3170.257092),
    Sketcher.Constraint("DistanceY", 4, 2, -1, 1, 1147.790551),
    Sketcher.Constraint("DistanceX", 6, 2, -1, 1, 4026.083469),
])
pad11 = doc.addObject("PartDesign::Pad", "Pad010")
body.addObject(pad11)
pad11.Profile = sketch11
pad11.Length = 1369.608283
pad11.Reversed = True

doc.recompute()
